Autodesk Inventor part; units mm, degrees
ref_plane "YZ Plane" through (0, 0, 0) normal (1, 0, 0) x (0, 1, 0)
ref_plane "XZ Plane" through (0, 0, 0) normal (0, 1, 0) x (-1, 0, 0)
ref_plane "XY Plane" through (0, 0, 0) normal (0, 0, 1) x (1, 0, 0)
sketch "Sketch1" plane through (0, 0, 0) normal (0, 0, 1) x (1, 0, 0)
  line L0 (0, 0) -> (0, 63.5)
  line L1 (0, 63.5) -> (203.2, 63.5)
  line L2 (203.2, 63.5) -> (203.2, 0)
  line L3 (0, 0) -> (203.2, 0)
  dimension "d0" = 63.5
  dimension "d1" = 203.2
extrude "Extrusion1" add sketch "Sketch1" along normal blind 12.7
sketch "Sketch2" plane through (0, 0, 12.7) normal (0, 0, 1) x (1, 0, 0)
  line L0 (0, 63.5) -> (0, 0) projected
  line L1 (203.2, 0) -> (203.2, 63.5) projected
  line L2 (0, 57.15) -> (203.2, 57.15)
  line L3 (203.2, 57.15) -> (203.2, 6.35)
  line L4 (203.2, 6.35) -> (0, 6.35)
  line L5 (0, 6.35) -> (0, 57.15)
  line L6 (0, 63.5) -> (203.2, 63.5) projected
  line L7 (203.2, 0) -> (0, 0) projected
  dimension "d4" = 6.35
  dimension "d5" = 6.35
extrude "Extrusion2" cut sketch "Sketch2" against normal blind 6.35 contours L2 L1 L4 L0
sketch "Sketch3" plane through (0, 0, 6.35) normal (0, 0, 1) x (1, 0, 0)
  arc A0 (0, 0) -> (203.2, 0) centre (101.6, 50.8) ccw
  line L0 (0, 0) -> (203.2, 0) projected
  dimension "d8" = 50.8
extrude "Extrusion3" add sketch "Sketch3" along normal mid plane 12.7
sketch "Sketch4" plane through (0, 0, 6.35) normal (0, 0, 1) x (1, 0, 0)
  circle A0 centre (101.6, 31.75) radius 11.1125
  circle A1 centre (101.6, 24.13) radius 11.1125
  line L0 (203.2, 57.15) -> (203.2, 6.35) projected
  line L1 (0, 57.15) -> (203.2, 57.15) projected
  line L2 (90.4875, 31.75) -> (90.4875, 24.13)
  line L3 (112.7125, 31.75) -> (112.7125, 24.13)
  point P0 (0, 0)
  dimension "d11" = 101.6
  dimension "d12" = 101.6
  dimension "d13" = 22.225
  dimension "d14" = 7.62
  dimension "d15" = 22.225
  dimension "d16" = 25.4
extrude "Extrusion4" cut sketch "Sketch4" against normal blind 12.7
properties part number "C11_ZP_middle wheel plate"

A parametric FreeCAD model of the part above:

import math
import FreeCAD as App
import Part
import Sketcher

V = App.Vector
Q = App.Units.Quantity


def add_polygon(sketch, points):
    """Adds a closed chain of lines whose ends are joined by coincident constraints."""
    first, n = sketch.GeometryCount, len(points)
    for a, b in zip(points, points[1:] + points[:1]):
        sketch.addGeometry(Part.LineSegment(App.Vector(*a, 0), App.Vector(*b, 0)), False)
    for i in range(n):
        sketch.addConstraint(Sketcher.Constraint("Coincident", first + i, 2, first + (i + 1) % n, 1))

doc = App.newDocument("Part")
body = doc.addObject("PartDesign::Body", "Body")

# Sketch on XY plane
sketch1 = body.newObject("Sketcher::SketchObject", "Sketch")
sketch1.AttachmentSupport = (doc.getObject("XY_Plane"), [""])
sketch1.MapMode = "FlatFace"
add_polygon(sketch1, [(0, 64), (0, 0), (203, 0), (203, 64)])  # lines 0-3
sketch1.addConstraint([
    Sketcher.Constraint("Vertical", 0),
    Sketcher.Constraint("Horizontal", 1),
    Sketcher.Constraint("Vertical", 2),
    Sketcher.Constraint("Horizontal", 3),
    Sketcher.Constraint("Coincident", 0, 2, -1, 1),
    Sketcher.Constraint("DistanceX", 1, 1, 1, 2, Q("8 in")),
    Sketcher.Constraint("DistanceY", 0, 2, 0, 1, Q("2.5 in")),
])
pad1 = body.newObject("PartDesign::Pad", "Pad")
pad1.Profile = sketch1
pad1.Length = Q("0.5 in")

# Sketch on XY plane
sketch2 = body.newObject("Sketcher::SketchObject", "Sketch001")
sketch2.AttachmentSupport = (doc.getObject("XY_Plane"), [""])
sketch2.MapMode = "FlatFace"
sketch2.AttachmentOffset = App.Placement(V(0, 0, 0.5 * 25.4), App.Rotation())
add_polygon(sketch2, [(203, 57), (0, 57), (0, 6), (203, 6)])  # lines 0-3
sketch2.addConstraint([
    Sketcher.Constraint("Horizontal", 0),
    Sketcher.Constraint("Vertical", 1),
    Sketcher.Constraint("Horizontal", 2),
    Sketcher.Constraint("Vertical", 3),
    Sketcher.Constraint("PointOnObject", 0, 2, -2),
    Sketcher.Constraint("DistanceX", 0, 2, 0, 1, Q("8 in")),
    Sketcher.Constraint("DistanceY", 1, 2, 1, 1, Q("2 in")),
    Sketcher.Constraint("DistanceY", -1, 1, 1, 2, Q("0.25 in")),
])
pocket1 = body.newObject("PartDesign::Pocket", "Pocket")
pocket1.Profile = sketch2
pocket1.Length = Q("0.25 in")

# Sketch on XY plane
sketch3 = body.newObject("Sketcher::SketchObject", "Sketch002")
sketch3.AttachmentSupport = (doc.getObject("XY_Plane"), [""])
sketch3.MapMode = "FlatFace"
sketch3.AttachmentOffset = App.Placement(V(0, 0, 0.25 * 25.4), App.Rotation())
sketch3.addGeometry([
    Part.LineSegment(V(203, 0, 0), V(0, 0, 0)),
    Part.ArcOfCircle(Part.Circle(V(102, 51, 0), V(0, 0, 1), 114), math.radians(-153), math.radians(-27)),
], False)
sketch3.addConstraint([
    Sketcher.Constraint("Coincident", 0, 1, 1, 2),
    Sketcher.Constraint("Coincident", 1, 1, 0, 2),
    Sketcher.Constraint("Horizontal", 0),
    Sketcher.Constraint("Coincident", 1, 1, -1, 1),
    Sketcher.Constraint("DistanceY", -1, 1, 1, 3, Q("2 in")),
    Sketcher.Constraint("DistanceX", 0, 2, 0, 1, Q("8 in")),
])
pad2 = body.newObject("PartDesign::Pad", "Pad001")
pad2.Profile = sketch3
pad2.Length = Q("0.5 in")
pad2.Midplane = True

# Sketch on XY plane
sketch4 = body.newObject("Sketcher::SketchObject", "Sketch003")
sketch4.AttachmentSupport = (doc.getObject("XY_Plane"), [""])
sketch4.MapMode = "FlatFace"
sketch4.AttachmentOffset = App.Placement(V(0, 0, 0.25 * 25.4), App.Rotation())
sketch4.addGeometry([
    Part.ArcOfCircle(Part.Circle(V(102, 32, 0), V(0, 0, 1), 11), math.radians(0), math.radians(180)),
    Part.LineSegment(V(90, 32, 0), V(90, 24, 0)),
    Part.ArcOfCircle(Part.Circle(V(102, 24, 0), V(0, 0, 1), 11), math.radians(180), math.radians(360)),
    Part.LineSegment(V(113, 24, 0), V(113, 32, 0)),
], False)
sketch4.addConstraint([
    Sketcher.Constraint("Tangent", 0, 2, 1, 1),
    Sketcher.Constraint("Tangent", 1, 2, 2, 1),
    Sketcher.Constraint("Tangent", 2, 2, 3, 1),
    Sketcher.Constraint("Tangent", 3, 2, 0, 1),
    Sketcher.Constraint("Vertical", 1),
    Sketcher.Constraint("Vertical", 3),
    Sketcher.Constraint("DistanceY", 1, 2, 1, 1, Q("0.3 in")),
    Sketcher.Constraint("DistanceX", -1, 1, 0, 3, Q("4 in")),
    Sketcher.Constraint("Radius", 0, Q("0.4375 in")),
    Sketcher.Constraint("DistanceY", -1, 1, 0, 3, Q("1.25 in")),
])
pocket2 = body.newObject("PartDesign::Pocket", "Pocket001")
pocket2.Profile = sketch4
pocket2.Length = Q("0.5 in")

doc.recompute()
